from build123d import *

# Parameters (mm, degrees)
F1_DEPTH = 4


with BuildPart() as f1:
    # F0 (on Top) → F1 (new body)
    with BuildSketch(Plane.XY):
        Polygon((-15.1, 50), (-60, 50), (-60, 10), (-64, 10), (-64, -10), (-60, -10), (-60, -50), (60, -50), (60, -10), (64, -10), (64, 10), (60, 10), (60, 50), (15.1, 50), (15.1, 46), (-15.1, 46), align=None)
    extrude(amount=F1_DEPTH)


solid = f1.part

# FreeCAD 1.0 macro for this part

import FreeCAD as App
import Part
import Sketcher
from FreeCAD import Vector
Q = App.Units.Quantity

doc = App.newDocument("Part")
body = doc.addObject("PartDesign::Body", "Body")

sketch1 = body.newObject("Sketcher::SketchObject", "Sketch")
sketch1.AttachmentSupport = (doc.getObject("XY_Plane"), [""])
sketch1.MapMode = "FlatFace"
sketch1.addGeometry([
    Part.LineSegment(Vector(-15.1, 50, 0), Vector(-60, 50, 0)),
    Part.LineSegment(Vector(-60, 50, 0), Vector(-60, 10, 0)),
    Part.LineSegment(Vector(-60, 10, 0), Vector(-64, 10, 0)),
    Part.LineSegment(Vector(-64, 10, 0), Vector(-64, -10, 0)),
    Part.LineSegment(Vector(-64, -10, 0), Vector(-60, -10, 0)),
    Part.LineSegment(Vector(-60, -10, 0), Vector(-60, -50, 0)),
    Part.LineSegment(Vector(-60, -50, 0), Vector(60, -50, 0)),
    Part.LineSegment(Vector(60, -50, 0), Vector(60, -10, 0)),
    Part.LineSegment(Vector(60, -10, 0), Vector(64, -10, 0)),
    Part.LineSegment(Vector(64, -10, 0), Vector(64, 10, 0)),
    Part.LineSegment(Vector(64, 10, 0), Vector(60, 10, 0)),
    Part.LineSegment(Vector(60, 10, 0), Vector(60, 50, 0)),
    Part.LineSegment(Vector(60, 50, 0), Vector(15.1, 50, 0)),
    Part.LineSegment(Vector(15.1, 50, 0), Vector(15.1, 46, 0)),
    Part.LineSegment(Vector(15.1, 46, 0), Vector(-15.1, 46, 0)),
    Part.LineSegment(Vector(-15.1, 46, 0), Vector(-15.1, 50, 0)),
], False)
sketch1.addConstraint([
    Sketcher.Constraint("Coincident", 0, 2, 1, 1),
    Sketcher.Constraint("Coincident", 1, 2, 2, 1),
    Sketcher.Constraint("Coincident", 2, 2, 3, 1),
    Sketcher.Constraint("Coincident", 3, 2, 4, 1),
    Sketcher.Constraint("Coincident", 4, 2, 5, 1),
    Sketcher.Constraint("Coincident", 5, 2, 6, 1),
    Sketcher.Constraint("Coincident", 6, 2, 7, 1),
    Sketcher.Constraint("Coincident", 7, 2, 8, 1),
    Sketcher.Constraint("Coincident", 8, 2, 9, 1),
    Sketcher.Constraint("Coincident", 9, 2, 10, 1),
    Sketcher.Constraint("Coincident", 10, 2, 11, 1),
    Sketcher.Constraint("Coincident", 11, 2, 12, 1),
    Sketcher.Constraint("Coincident", 12, 2, 13, 1),
    Sketcher.Constraint("Coincident", 13, 2, 14, 1),
    Sketcher.Constraint("Coincident", 14, 2, 15, 1),
    Sketcher.Constraint("Coincident", 15, 2, 0, 1),
    Sketcher.Constraint("Horizontal", 0),
    Sketcher.Constraint("Vertical", 1),
    Sketcher.Constraint("Horizontal", 2),
    Sketcher.Constraint("Vertical", 3),
    Sketcher.Constraint("Horizontal", 4),
    Sketcher.Constraint("Vertical", 5),
    Sketcher.Constraint("Horizontal", 6),
    Sketcher.Constraint("Vertical", 7),
    Sketcher.Constraint("Horizontal", 8),
    Sketcher.Constraint("Vertical", 9),
    Sketcher.Constraint("Horizontal", 10),
    Sketcher.Constraint("Vertical", 11),
    Sketcher.Constraint("Horizontal", 12),
    Sketcher.Constraint("Vertical", 13),
    Sketcher.Constraint("Horizontal", 14),
    Sketcher.Constraint("Vertical", 15),
    Sketcher.Constraint("Symmetric", 0, 2, 6, 2, -1, 1),
    Sketcher.Constraint("Symmetric", 2, 2, 8, 2, -1, 1),
    Sketcher.Constraint("Symmetric", 4, 2, 10, 2, -1, 1),
    Sketcher.Constraint("Symmetric", 4, 2, 7, 2, -2),
    Sketcher.Constraint("Symmetric", 12, 2, 15, 2, -2),
    Sketcher.Constraint("Equal", 10, 13),
    Sketcher.Constraint("DistanceX", 2, 2, 2, 1, Q("4 mm")),
    Sketcher.Constraint("DistanceX", 6, 1, 6, 2, Q("120 mm")),
    Sketcher.Constraint("DistanceY", 1, 2, 1, 1, Q("40 mm")),
    Sketcher.Constraint("DistanceY", 3, 2, 3, 1, Q("20 mm")),
    Sketcher.Constraint("DistanceX", 0, 2, 0, 1, Q("44.9 mm")),
])
pad1 = body.newObject("PartDesign::Pad", "Pad")
pad1.Profile = sketch1
pad1.Length = 4

doc.recompute()
